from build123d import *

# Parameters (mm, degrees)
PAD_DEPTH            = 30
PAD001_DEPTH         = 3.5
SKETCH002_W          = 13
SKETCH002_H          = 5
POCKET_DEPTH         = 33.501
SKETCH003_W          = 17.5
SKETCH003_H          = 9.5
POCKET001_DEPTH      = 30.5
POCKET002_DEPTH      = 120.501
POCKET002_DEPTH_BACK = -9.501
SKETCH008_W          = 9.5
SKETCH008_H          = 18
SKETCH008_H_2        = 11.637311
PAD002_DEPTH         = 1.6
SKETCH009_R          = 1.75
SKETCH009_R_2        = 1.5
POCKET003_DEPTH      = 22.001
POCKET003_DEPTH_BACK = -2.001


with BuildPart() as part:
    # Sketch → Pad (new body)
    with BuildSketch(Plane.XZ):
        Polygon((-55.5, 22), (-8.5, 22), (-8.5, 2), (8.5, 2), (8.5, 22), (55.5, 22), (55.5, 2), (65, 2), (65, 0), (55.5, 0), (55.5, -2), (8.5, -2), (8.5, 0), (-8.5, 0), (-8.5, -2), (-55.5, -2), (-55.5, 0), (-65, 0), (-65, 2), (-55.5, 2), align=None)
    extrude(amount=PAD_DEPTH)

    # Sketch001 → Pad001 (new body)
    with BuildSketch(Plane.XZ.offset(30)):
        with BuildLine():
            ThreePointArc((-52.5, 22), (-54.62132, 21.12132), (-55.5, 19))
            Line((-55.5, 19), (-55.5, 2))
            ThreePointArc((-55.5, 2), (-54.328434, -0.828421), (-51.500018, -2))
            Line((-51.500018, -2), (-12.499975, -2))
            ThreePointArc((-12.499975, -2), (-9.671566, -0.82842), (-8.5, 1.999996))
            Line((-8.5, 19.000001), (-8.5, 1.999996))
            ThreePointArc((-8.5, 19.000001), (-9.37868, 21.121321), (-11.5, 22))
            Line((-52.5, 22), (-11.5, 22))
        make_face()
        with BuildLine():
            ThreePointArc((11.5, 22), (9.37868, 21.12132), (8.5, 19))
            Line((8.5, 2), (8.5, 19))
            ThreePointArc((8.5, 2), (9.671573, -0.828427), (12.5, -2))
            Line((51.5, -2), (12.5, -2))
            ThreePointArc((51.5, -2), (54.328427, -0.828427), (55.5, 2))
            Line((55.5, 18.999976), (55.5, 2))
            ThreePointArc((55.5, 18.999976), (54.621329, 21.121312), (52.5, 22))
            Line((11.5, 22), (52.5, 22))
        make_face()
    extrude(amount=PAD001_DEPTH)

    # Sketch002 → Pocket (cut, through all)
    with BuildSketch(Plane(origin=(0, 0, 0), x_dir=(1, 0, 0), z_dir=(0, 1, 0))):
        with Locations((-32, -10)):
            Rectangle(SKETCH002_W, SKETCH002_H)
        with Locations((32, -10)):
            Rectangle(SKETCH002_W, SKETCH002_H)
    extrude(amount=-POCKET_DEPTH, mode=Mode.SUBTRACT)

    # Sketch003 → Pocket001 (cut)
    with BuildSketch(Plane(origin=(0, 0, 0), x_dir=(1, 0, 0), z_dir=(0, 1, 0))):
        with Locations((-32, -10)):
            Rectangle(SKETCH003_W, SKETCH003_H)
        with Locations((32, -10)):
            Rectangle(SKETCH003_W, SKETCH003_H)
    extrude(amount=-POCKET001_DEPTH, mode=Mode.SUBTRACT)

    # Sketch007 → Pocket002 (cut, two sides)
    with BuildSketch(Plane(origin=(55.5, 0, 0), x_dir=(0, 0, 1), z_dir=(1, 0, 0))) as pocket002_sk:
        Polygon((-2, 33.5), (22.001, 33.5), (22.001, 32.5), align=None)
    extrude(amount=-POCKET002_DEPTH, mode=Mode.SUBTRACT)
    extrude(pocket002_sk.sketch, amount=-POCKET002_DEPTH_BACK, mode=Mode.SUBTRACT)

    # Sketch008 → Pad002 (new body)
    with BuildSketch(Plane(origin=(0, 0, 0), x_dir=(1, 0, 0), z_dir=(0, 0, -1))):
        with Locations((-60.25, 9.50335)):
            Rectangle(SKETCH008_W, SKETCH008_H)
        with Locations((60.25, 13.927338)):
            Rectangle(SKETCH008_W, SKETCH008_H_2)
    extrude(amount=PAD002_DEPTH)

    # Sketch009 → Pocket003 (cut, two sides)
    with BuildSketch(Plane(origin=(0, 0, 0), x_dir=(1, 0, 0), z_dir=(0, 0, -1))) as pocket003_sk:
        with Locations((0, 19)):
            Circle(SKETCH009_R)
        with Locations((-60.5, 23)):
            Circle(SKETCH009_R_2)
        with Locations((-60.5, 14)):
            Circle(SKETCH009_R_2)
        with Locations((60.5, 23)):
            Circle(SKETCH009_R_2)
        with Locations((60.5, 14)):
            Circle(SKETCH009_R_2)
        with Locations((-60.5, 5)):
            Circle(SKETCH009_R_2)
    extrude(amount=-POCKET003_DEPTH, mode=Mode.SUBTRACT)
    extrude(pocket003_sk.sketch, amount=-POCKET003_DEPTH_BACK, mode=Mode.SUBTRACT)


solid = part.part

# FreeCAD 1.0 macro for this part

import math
import FreeCAD as App
import Part
import Sketcher

V = App.Vector
Q = App.Units.Quantity

doc = App.newDocument("Part")
body = doc.addObject("PartDesign::Body", "Body")

# Sketch on XZ plane
sketch1 = body.newObject("Sketcher::SketchObject", "Sketch")
sketch1.AttachmentSupport = (doc.getObject("XZ_Plane"), [""])
sketch1.MapMode = "FlatFace"
sketch1.addGeometry([
    Part.LineSegment(V(-8.5, 22, 0), V(-55.5, 22, 0)),  # 0
    Part.LineSegment(V(-55.5, 22, 0), V(-55.5, 2, 0)),  # 1
    Part.LineSegment(V(-55.5, 2, 0), V(-65, 2, 0)),  # 2
    Part.LineSegment(V(-65, 2, 0), V(-65, 0, 0)),  # 3
    Part.LineSegment(V(-65, 0, 0), V(-55.5, 0, 0)),  # 4
    Part.LineSegment(V(-55.5, 0, 0), V(-55.5, -2, 0)),  # 5
    Part.LineSegment(V(-55.5, -2, 0), V(-8.5, -2, 0)),  # 6
    Part.LineSegment(V(-8.5, -2, 0), V(-8.5, 0, 0)),  # 7
    Part.LineSegment(V(-8.5, 0, 0), V(8.5, 0, 0)),  # 8
    Part.LineSegment(V(8.5, 0, 0), V(8.5, -2, 0)),  # 9
    Part.LineSegment(V(8.5, -2, 0), V(55.5, -2, 0)),  # 10
    Part.LineSegment(V(55.5, -2, 0), V(55.5, 0, 0)),  # 11
    Part.LineSegment(V(55.5, 0, 0), V(65, 0, 0)),  # 12
    Part.LineSegment(V(65, 0, 0), V(65, 2, 0)),  # 13
    Part.LineSegment(V(65, 2, 0), V(55.5, 2, 0)),  # 14
    Part.LineSegment(V(55.5, 2, 0), V(55.5, 22, 0)),  # 15
    Part.LineSegment(V(55.5, 22, 0), V(8.5, 22, 0)),  # 16
    Part.LineSegment(V(8.5, 22, 0), V(8.5, 2, 0)),  # 17
    Part.LineSegment(V(8.5, 2, 0), V(-8.5, 2, 0)),  # 18
    Part.LineSegment(V(-8.5, 2, 0), V(-8.5, 22, 0)),  # 19
], False)
sketch1.addConstraint([
    Sketcher.Constraint("Coincident", 0, 2, 1, 1),
    Sketcher.Constraint("Coincident", 1, 2, 2, 1),
    Sketcher.Constraint("Coincident", 2, 2, 3, 1),
    Sketcher.Constraint("Coincident", 3, 2, 4, 1),
    Sketcher.Constraint("Coincident", 4, 2, 5, 1),
    Sketcher.Constraint("Coincident", 5, 2, 6, 1),
    Sketcher.Constraint("Coincident", 6, 2, 7, 1),
    Sketcher.Constraint("Coincident", 7, 2, 8, 1),
    Sketcher.Constraint("Coincident", 8, 2, 9, 1),
    Sketcher.Constraint("Coincident", 9, 2, 10, 1),
    Sketcher.Constraint("Coincident", 10, 2, 11, 1),
    Sketcher.Constraint("Coincident", 11, 2, 12, 1),
    Sketcher.Constraint("Coincident", 12, 2, 13, 1),
    Sketcher.Constraint("Coincident", 13, 2, 14, 1),
    Sketcher.Constraint("Coincident", 14, 2, 15, 1),
    Sketcher.Constraint("Coincident", 15, 2, 16, 1),
    Sketcher.Constraint("Coincident", 16, 2, 17, 1),
    Sketcher.Constraint("Coincident", 17, 2, 18, 1),
    Sketcher.Constraint("Coincident", 18, 2, 19, 1),
    Sketcher.Constraint("Coincident", 19, 2, 0, 1),
    Sketcher.Constraint("Horizontal", 0),
    Sketcher.Constraint("Vertical", 1),
    Sketcher.Constraint("Horizontal", 2),
    Sketcher.Constraint("Vertical", 3),
    Sketcher.Constraint("Horizontal", 4),
    Sketcher.Constraint("Vertical", 5),
    Sketcher.Constraint("Horizontal", 6),
    Sketcher.Constraint("Vertical", 7),
    Sketcher.Constraint("Horizontal", 8),
    Sketcher.Constraint("Vertical", 9),
    Sketcher.Constraint("Horizontal", 10),
    Sketcher.Constraint("Vertical", 11),
    Sketcher.Constraint("Horizontal", 12),
    Sketcher.Constraint("Vertical", 13),
    Sketcher.Constraint("Horizontal", 14),
    Sketcher.Constraint("Vertical", 15),
    Sketcher.Constraint("Horizontal", 16),
    Sketcher.Constraint("Vertical", 17),
    Sketcher.Constraint("Horizontal", 18),
    Sketcher.Constraint("Vertical", 19),
    Sketcher.Constraint("Symmetric", 7, 2, 8, 2, -1, 1),
    Sketcher.Constraint("Symmetric", 1, 2, 10, 2, -1, 1),
    Sketcher.Constraint("Symmetric", 4, 2, 11, 2, -1, 1),
    Sketcher.Constraint("Symmetric", 5, 2, 14, 2, -1, 1),
    Sketcher.Constraint("Symmetric", 6, 2, 17, 2, -1, 1),
    Sketcher.Constraint("Symmetric", 9, 2, 18, 2, -1, 1),
    Sketcher.Constraint("Symmetric", 3, 2, 12, 2, -2),
    Sketcher.Constraint("Horizontal", 0, 2, 15, 2),
    Sketcher.Constraint("DistanceX", 0, 2, 0, 1, Q("47 mm")),
    Sketcher.Constraint("DistanceX", 8, 1, 8, 2, Q("17 mm")),
    Sketcher.Constraint("DistanceY", 1, 2, 1, 1, Q("20 mm")),
    Sketcher.Constraint("DistanceY", 3, 2, 3, 1, Q("2 mm")),
    Sketcher.Constraint("DistanceX", 2, 2, 2, 1, Q("9.5 mm")),
])
pad1 = body.newObject("PartDesign::Pad", "Pad")
pad1.Profile = sketch1
pad1.Length = 30

# Sketch on XZ plane
sketch2 = body.newObject("Sketcher::SketchObject", "Sketch001")
sketch2.AttachmentSupport = (doc.getObject("XZ_Plane"), [""])
sketch2.MapMode = "FlatFace"
sketch2.AttachmentOffset = App.Placement(V(0, 0, 30), App.Rotation())
sketch2.addGeometry([
    Part.ArcOfCircle(Part.Circle(V(-52.5, 19, 0), V(0, 0, 1), 3), math.radians(90), math.radians(180)),  # 0
    Part.LineSegment(V(-55.5, 19, 0), V(-55.5, 2, 0)),  # 1
    Part.ArcOfCircle(Part.Circle(V(-51.5, 2, 0), V(0, 0, 1), 4), math.radians(180), math.radians(270)),  # 2
    Part.LineSegment(V(-51.5, -2, 0), V(-12.5, -2, 0)),  # 3
    Part.ArcOfCircle(Part.Circle(V(-12.5, 2, 0), V(0, 0, 1), 4), math.radians(-90), math.radians(0)),  # 4
    Part.LineSegment(V(-8.5, 2, 0), V(-8.5, 19, 0)),  # 5
    Part.ArcOfCircle(Part.Circle(V(-11.5, 19, 0), V(0, 0, 1), 3), math.radians(0), math.radians(90)),  # 6
    Part.LineSegment(V(-11.5, 22, 0), V(-52.5, 22, 0)),  # 7
    Part.ArcOfCircle(Part.Circle(V(11.5, 19, 0), V(0, 0, 1), 3), math.radians(90), math.radians(180)),  # 8
    Part.LineSegment(V(8.5, 19, 0), V(8.5, 2, 0)),  # 9
    Part.ArcOfCircle(Part.Circle(V(12.5, 2, 0), V(0, 0, 1), 4), math.radians(-180), math.radians(-90)),  # 10
    Part.LineSegment(V(12.5, -2, 0), V(51.5, -2, 0)),  # 11
    Part.ArcOfCircle(Part.Circle(V(51.5, 2, 0), V(0, 0, 1), 4), math.radians(-90), math.radians(0)),  # 12
    Part.LineSegment(V(55.5, 2, 0), V(55.5, 19, 0)),  # 13
    Part.ArcOfCircle(Part.Circle(V(52.5, 19, 0), V(0, 0, 1), 3), math.radians(0), math.radians(90)),  # 14
    Part.LineSegment(V(52.5, 22, 0), V(11.5, 22, 0)),  # 15
], False)
sketch2.addConstraint([
    Sketcher.Constraint("Tangent", 0, 2, 1, 1),
    Sketcher.Constraint("Tangent", 1, 2, 2, 1),
    Sketcher.Constraint("Coincident", 2, 2, 3, 1),
    Sketcher.Constraint("Coincident", 3, 2, 4, 1),
    Sketcher.Constraint("Tangent", 4, 2, 5, 1),
    Sketcher.Constraint("Tangent", 5, 2, 6, 1),
    Sketcher.Constraint("Tangent", 6, 2, 7, 1),
    Sketcher.Constraint("Tangent", 7, 2, 0, 1),
    Sketcher.Constraint("Tangent", 8, 2, 9, 1),
    Sketcher.Constraint("Tangent", 9, 2, 10, 1),
    Sketcher.Constraint("Tangent", 10, 2, 11, 1),
    Sketcher.Constraint("Tangent", 11, 2, 12, 1),
    Sketcher.Constraint("Tangent", 12, 2, 13, 1),
    Sketcher.Constraint("Coincident", 13, 2, 14, 1),
    Sketcher.Constraint("Tangent", 14, 2, 15, 1),
    Sketcher.Constraint("Tangent", 15, 2, 8, 1),
    Sketcher.Constraint("Vertical", 1),
    Sketcher.Constraint("Horizontal", 3),
    Sketcher.Constraint("Vertical", 5),
    Sketcher.Constraint("Horizontal", 7),
    Sketcher.Constraint("Vertical", 9),
    Sketcher.Constraint("Horizontal", 11),
    Sketcher.Constraint("Vertical", 13),
    Sketcher.Constraint("Horizontal", 15),
    Sketcher.Constraint("Equal", 2, 4),
    Sketcher.Constraint("Equal", 0, 6),
    Sketcher.Constraint("Equal", 6, 8),
    Sketcher.Constraint("Equal", 4, 10),
    Sketcher.Constraint("Equal", 10, 12),
    Sketcher.Constraint("Equal", 8, 14),
    Sketcher.Constraint("Symmetric", 6, 3, 8, 3, -2),
    Sketcher.Constraint("Symmetric", 2, 3, 12, 3, -2),
    Sketcher.Constraint("Radius", 0, Q("3.000001 mm")),
    Sketcher.Constraint("Radius", 2, Q("3.999999 mm")),
    Sketcher.Constraint("DistanceX", 7, 2, 7, 1, Q("41 mm")),
    Sketcher.Constraint("DistanceY", 1, 2, 1, 1, Q("17 mm")),
    Sketcher.Constraint("DistanceY", -1, 1, 0, 3, Q("18.999999 mm")),
    Sketcher.Constraint("DistanceX", 6, 3, 8, 3, Q("23.000001 mm")),
    Sketcher.Constraint("DistanceX", 3, 1, 3, 2, Q("39.000043 mm")),
    Sketcher.Constraint("DistanceY", 13, 1, 13, 2, Q("16.999976 mm")),
    Sketcher.Constraint("DistanceX", 0, 3, 2, 2, Q("0.999981 mm")),
])
pad2 = body.newObject("PartDesign::Pad", "Pad001")
pad2.Profile = sketch2
pad2.Length = 3.5

# Sketch on XZ plane
sketch3 = body.newObject("Sketcher::SketchObject", "Sketch002")
sketch3.AttachmentSupport = (doc.getObject("XZ_Plane"), [""])
sketch3.MapMode = "FlatFace"
sketch3.addGeometry([
    Part.LineSegment(V(-38, 8, 0), V(-38, 12, 0)),  # 0
    Part.LineSegment(V(-38, 12, 0), V(-26, 12, 0)),  # 1
    Part.LineSegment(V(-26, 12, 0), V(-26, 8, 0)),  # 2
    Part.LineSegment(V(-26, 8, 0), V(-38, 8, 0)),  # 3
    Part.LineSegment(V(26, 8, 0), V(26, 12, 0)),  # 4
    Part.LineSegment(V(26, 12, 0), V(38, 12, 0)),  # 5
    Part.LineSegment(V(38, 12, 0), V(38, 8, 0)),  # 6
    Part.LineSegment(V(38, 8, 0), V(26, 8, 0)),  # 7
], False)
sketch3.addConstraint([
    Sketcher.Constraint("Coincident", 0, 2, 1, 1),
    Sketcher.Constraint("Coincident", 1, 2, 2, 1),
    Sketcher.Constraint("Coincident", 2, 2, 3, 1),
    Sketcher.Constraint("Coincident", 3, 2, 0, 1),
    Sketcher.Constraint("Coincident", 4, 2, 5, 1),
    Sketcher.Constraint("Coincident", 5, 2, 6, 1),
    Sketcher.Constraint("Coincident", 6, 2, 7, 1),
    Sketcher.Constraint("Coincident", 7, 2, 4, 1),
    Sketcher.Constraint("Vertical", 0),
    Sketcher.Constraint("Horizontal", 1),
    Sketcher.Constraint("Vertical", 2),
    Sketcher.Constraint("Horizontal", 3),
    Sketcher.Constraint("Vertical", 4),
    Sketcher.Constraint("Horizontal", 5),
    Sketcher.Constraint("Vertical", 6),
    Sketcher.Constraint("Horizontal", 7),
    Sketcher.Constraint("Symmetric", 1, 2, 4, 2, -2),
    Sketcher.Constraint("Symmetric", 3, 2, 6, 2, -2),
    Sketcher.Constraint("DistanceX", 1, 1, 1, 2, Q("13 mm")),
    Sketcher.Constraint("DistanceY", 0, 1, 0, 2, Q("5 mm")),
    Sketcher.Constraint("DistanceX", 1, 2, 4, 2, Q("51 mm")),
    Sketcher.Constraint("DistanceY", -1, 1, 0, 2, Q("12.5 mm")),
])
pocket1 = body.newObject("PartDesign::Pocket", "Pocket")
pocket1.Profile = sketch3
pocket1.Type = "ThroughAll"
pocket1.Reversed = True

# Sketch on XZ plane
sketch4 = body.newObject("Sketcher::SketchObject", "Sketch003")
sketch4.AttachmentSupport = (doc.getObject("XZ_Plane"), [""])
sketch4.MapMode = "FlatFace"
sketch4.addGeometry([
    Part.LineSegment(V(-41, 5, 0), V(-41, 15, 0)),  # 0
    Part.LineSegment(V(-41, 15, 0), V(-23, 15, 0)),  # 1
    Part.LineSegment(V(-23, 15, 0), V(-23, 5, 0)),  # 2
    Part.LineSegment(V(-23, 5, 0), V(-41, 5, 0)),  # 3
    Part.LineSegment(V(23, 5, 0), V(23, 15, 0)),  # 4
    Part.LineSegment(V(23, 15, 0), V(41, 15, 0)),  # 5
    Part.LineSegment(V(41, 15, 0), V(41, 5, 0)),  # 6
    Part.LineSegment(V(41, 5, 0), V(23, 5, 0)),  # 7
], False)
sketch4.addConstraint([
    Sketcher.Constraint("Coincident", 0, 2, 1, 1),
    Sketcher.Constraint("Coincident", 1, 2, 2, 1),
    Sketcher.Constraint("Coincident", 2, 2, 3, 1),
    Sketcher.Constraint("Coincident", 3, 2, 0, 1),
    Sketcher.Constraint("Coincident", 4, 2, 5, 1),
    Sketcher.Constraint("Coincident", 5, 2, 6, 1),
    Sketcher.Constraint("Coincident", 6, 2, 7, 1),
    Sketcher.Constraint("Coincident", 7, 2, 4, 1),
    Sketcher.Constraint("Vertical", 0),
    Sketcher.Constraint("Horizontal", 1),
    Sketcher.Constraint("Vertical", 2),
    Sketcher.Constraint("Horizontal", 3),
    Sketcher.Constraint("Vertical", 4),
    Sketcher.Constraint("Horizontal", 5),
    Sketcher.Constraint("Vertical", 6),
    Sketcher.Constraint("Horizontal", 7),
    Sketcher.Constraint("Symmetric", 1, 2, 4, 2, -2),
    Sketcher.Constraint("Symmetric", 3, 2, 6, 2, -2),
    Sketcher.Constraint("DistanceX", 1, 1, 1, 2, Q("17.5 mm")),
    Sketcher.Constraint("DistanceY", 0, 1, 0, 2, Q("9.5 mm")),
    Sketcher.Constraint("DistanceX", 0, 2, 4, 2, Q("64 mm")),
    Sketcher.Constraint("DistanceY", -1, 1, 0, 2, Q("14.75 mm")),
])
pocket2 = body.newObject("PartDesign::Pocket", "Pocket001")
pocket2.Profile = sketch4
pocket2.Length = 30.5
pocket2.Reversed = True

# Sketch on YZ plane
sketch5 = body.newObject("Sketcher::SketchObject", "Sketch004")
sketch5.AttachmentSupport = (doc.getObject("YZ_Plane"), [""])
sketch5.MapMode = "FlatFace"
sketch5.AttachmentOffset = App.Placement(V(0, 0, 55.5), App.Rotation())
sketch5.addGeometry([
    Part.LineSegment(V(-33.5, 22, 0), V(-33.5, -2, 0)),
    Part.LineSegment(V(-33.5, -2, 0), V(-32.5, 22, 0)),
    Part.LineSegment(V(-32.5, 22, 0), V(-33.5, 22, 0)),
], False)
sketch5.addConstraint([
    Sketcher.Constraint("Coincident", 0, 2, 1, 1),
    Sketcher.Constraint("Coincident", 1, 2, 2, 1),
    Sketcher.Constraint("Coincident", 2, 2, 0, 1),
    Sketcher.Constraint("Vertical", 0),
    Sketcher.Constraint("Horizontal", 2),
    Sketcher.Constraint("DistanceX", 2, 2, 2, 1, Q("1 mm")),
    Sketcher.Constraint("DistanceY", 0, 2, -1, 1, Q("2 mm")),
    Sketcher.Constraint("DistanceX", 0, 2, -1, 1, Q("33.5 mm")),
    Sketcher.Constraint("DistanceY", 0, 2, 0, 1, Q("24.001 mm")),
])
pocket3 = body.newObject("PartDesign::Pocket", "Pocket002")
pocket3.Profile = sketch5
pocket3.Type = "ThroughAll"
pocket3.Midplane = True

# Sketch on XY plane
sketch6 = body.newObject("Sketcher::SketchObject", "Sketch005")
sketch6.AttachmentSupport = (doc.getObject("XY_Plane"), [""])
sketch6.MapMode = "FlatFace"
sketch6.addGeometry([
    Part.LineSegment(V(-65, -19, 0), V(-65, -1, 0)),  # 0
    Part.LineSegment(V(-65, -1, 0), V(-56, -1, 0)),  # 1
    Part.LineSegment(V(-56, -1, 0), V(-56, -19, 0)),  # 2
    Part.LineSegment(V(-56, -19, 0), V(-65, -19, 0)),  # 3
    Part.LineSegment(V(56, -20, 0), V(56, -8, 0)),  # 4
    Part.LineSegment(V(56, -8, 0), V(65, -8, 0)),  # 5
    Part.LineSegment(V(65, -8, 0), V(65, -20, 0)),  # 6
    Part.LineSegment(V(65, -20, 0), V(56, -20, 0)),  # 7
], False)
sketch6.addConstraint([
    Sketcher.Constraint("Coincident", 0, 2, 1, 1),
    Sketcher.Constraint("Coincident", 1, 2, 2, 1),
    Sketcher.Constraint("Coincident", 2, 2, 3, 1),
    Sketcher.Constraint("Coincident", 3, 2, 0, 1),
    Sketcher.Constraint("Coincident", 4, 2, 5, 1),
    Sketcher.Constraint("Coincident", 5, 2, 6, 1),
    Sketcher.Constraint("Coincident", 6, 2, 7, 1),
    Sketcher.Constraint("Coincident", 7, 2, 4, 1),
    Sketcher.Constraint("Vertical", 0),
    Sketcher.Constraint("Horizontal", 1),
    Sketcher.Constraint("Vertical", 2),
    Sketcher.Constraint("Horizontal", 3),
    Sketcher.Constraint("Vertical", 4),
    Sketcher.Constraint("Horizontal", 5),
    Sketcher.Constraint("Vertical", 6),
    Sketcher.Constraint("Horizontal", 7),
    Sketcher.Constraint("Equal", 3, 5),
    Sketcher.Constraint("DistanceY", 0, 1, 0, 2, Q("18 mm")),
    Sketcher.Constraint("DistanceX", 1, 1, 1, 2, Q("9.5 mm")),
    Sketcher.Constraint("DistanceX", 0, 2, -1, 1, Q("65 mm")),
    Sketcher.Constraint("DistanceX", -1, 1, 5, 2, Q("65 mm")),
    Sketcher.Constraint("DistanceY", 4, 1, 4, 2, Q("11.637311 mm")),
    Sketcher.Constraint("DistanceY", 0, 2, -1, 1, Q("0.50335 mm")),
    Sketcher.Constraint("DistanceY", 4, 2, -1, 1, Q("8.108683 mm")),
])
pad3 = body.newObject("PartDesign::Pad", "Pad002")
pad3.Profile = sketch6
pad3.Length = 1.6
pad3.Reversed = True

# Sketch on XY plane
sketch7 = body.newObject("Sketcher::SketchObject", "Sketch006")
sketch7.AttachmentSupport = (doc.getObject("XY_Plane"), [""])
sketch7.MapMode = "FlatFace"
sketch7.addGeometry([
    Part.Circle(V(0, -19, 0), V(0, 0, 1), 1.8),  # 0
    Part.Circle(V(-60.5, -23, 0), V(0, 0, 1), 1.5),  # 1
    Part.Circle(V(-60.5, -14, 0), V(0, 0, 1), 1.5),  # 2
    Part.Circle(V(60.5, -23, 0), V(0, 0, 1), 1.5),  # 3
    Part.Circle(V(60.5, -14, 0), V(0, 0, 1), 1.5),  # 4
    Part.Circle(V(-60.5, -5, 0), V(0, 0, 1), 1.5),  # 5
], False)
sketch7.addConstraint([
    Sketcher.Constraint("Equal", 1, 2),
    Sketcher.Constraint("Equal", 2, 3),
    Sketcher.Constraint("Equal", 3, 4),
    Sketcher.Constraint("Equal", 4, 5),
    Sketcher.Constraint("Symmetric", 1, 3, 3, 3, -2),
    Sketcher.Constraint("Symmetric", 2, 3, 4, 3, -2),
    Sketcher.Constraint("PointOnObject", 0, 3, -2),
    Sketcher.Constraint("Vertical", 1, 3, 2, 3),
    Sketcher.Constraint("Vertical", 2, 3, 5, 3),
    Sketcher.Constraint("Diameter", 1, Q("3 mm")),
    Sketcher.Constraint("Diameter", 0, Q("3.5 mm")),
    Sketcher.Constraint("DistanceY", 0, 3, -1, 1, Q("19 mm")),
    Sketcher.Constraint("DistanceY", 1, 3, -1, 1, Q("23 mm")),
    Sketcher.Constraint("DistanceY", 2, 3, -1, 1, Q("14 mm")),
    Sketcher.Constraint("DistanceY", 5, 3, -1, 1, Q("5 mm")),
    Sketcher.Constraint("DistanceX", 1, 3, 3, 3, Q("121 mm")),
])
pocket4 = body.newObject("PartDesign::Pocket", "Pocket003")
pocket4.Profile = sketch7
pocket4.Type = "ThroughAll"
pocket4.Midplane = True

doc.recompute()
